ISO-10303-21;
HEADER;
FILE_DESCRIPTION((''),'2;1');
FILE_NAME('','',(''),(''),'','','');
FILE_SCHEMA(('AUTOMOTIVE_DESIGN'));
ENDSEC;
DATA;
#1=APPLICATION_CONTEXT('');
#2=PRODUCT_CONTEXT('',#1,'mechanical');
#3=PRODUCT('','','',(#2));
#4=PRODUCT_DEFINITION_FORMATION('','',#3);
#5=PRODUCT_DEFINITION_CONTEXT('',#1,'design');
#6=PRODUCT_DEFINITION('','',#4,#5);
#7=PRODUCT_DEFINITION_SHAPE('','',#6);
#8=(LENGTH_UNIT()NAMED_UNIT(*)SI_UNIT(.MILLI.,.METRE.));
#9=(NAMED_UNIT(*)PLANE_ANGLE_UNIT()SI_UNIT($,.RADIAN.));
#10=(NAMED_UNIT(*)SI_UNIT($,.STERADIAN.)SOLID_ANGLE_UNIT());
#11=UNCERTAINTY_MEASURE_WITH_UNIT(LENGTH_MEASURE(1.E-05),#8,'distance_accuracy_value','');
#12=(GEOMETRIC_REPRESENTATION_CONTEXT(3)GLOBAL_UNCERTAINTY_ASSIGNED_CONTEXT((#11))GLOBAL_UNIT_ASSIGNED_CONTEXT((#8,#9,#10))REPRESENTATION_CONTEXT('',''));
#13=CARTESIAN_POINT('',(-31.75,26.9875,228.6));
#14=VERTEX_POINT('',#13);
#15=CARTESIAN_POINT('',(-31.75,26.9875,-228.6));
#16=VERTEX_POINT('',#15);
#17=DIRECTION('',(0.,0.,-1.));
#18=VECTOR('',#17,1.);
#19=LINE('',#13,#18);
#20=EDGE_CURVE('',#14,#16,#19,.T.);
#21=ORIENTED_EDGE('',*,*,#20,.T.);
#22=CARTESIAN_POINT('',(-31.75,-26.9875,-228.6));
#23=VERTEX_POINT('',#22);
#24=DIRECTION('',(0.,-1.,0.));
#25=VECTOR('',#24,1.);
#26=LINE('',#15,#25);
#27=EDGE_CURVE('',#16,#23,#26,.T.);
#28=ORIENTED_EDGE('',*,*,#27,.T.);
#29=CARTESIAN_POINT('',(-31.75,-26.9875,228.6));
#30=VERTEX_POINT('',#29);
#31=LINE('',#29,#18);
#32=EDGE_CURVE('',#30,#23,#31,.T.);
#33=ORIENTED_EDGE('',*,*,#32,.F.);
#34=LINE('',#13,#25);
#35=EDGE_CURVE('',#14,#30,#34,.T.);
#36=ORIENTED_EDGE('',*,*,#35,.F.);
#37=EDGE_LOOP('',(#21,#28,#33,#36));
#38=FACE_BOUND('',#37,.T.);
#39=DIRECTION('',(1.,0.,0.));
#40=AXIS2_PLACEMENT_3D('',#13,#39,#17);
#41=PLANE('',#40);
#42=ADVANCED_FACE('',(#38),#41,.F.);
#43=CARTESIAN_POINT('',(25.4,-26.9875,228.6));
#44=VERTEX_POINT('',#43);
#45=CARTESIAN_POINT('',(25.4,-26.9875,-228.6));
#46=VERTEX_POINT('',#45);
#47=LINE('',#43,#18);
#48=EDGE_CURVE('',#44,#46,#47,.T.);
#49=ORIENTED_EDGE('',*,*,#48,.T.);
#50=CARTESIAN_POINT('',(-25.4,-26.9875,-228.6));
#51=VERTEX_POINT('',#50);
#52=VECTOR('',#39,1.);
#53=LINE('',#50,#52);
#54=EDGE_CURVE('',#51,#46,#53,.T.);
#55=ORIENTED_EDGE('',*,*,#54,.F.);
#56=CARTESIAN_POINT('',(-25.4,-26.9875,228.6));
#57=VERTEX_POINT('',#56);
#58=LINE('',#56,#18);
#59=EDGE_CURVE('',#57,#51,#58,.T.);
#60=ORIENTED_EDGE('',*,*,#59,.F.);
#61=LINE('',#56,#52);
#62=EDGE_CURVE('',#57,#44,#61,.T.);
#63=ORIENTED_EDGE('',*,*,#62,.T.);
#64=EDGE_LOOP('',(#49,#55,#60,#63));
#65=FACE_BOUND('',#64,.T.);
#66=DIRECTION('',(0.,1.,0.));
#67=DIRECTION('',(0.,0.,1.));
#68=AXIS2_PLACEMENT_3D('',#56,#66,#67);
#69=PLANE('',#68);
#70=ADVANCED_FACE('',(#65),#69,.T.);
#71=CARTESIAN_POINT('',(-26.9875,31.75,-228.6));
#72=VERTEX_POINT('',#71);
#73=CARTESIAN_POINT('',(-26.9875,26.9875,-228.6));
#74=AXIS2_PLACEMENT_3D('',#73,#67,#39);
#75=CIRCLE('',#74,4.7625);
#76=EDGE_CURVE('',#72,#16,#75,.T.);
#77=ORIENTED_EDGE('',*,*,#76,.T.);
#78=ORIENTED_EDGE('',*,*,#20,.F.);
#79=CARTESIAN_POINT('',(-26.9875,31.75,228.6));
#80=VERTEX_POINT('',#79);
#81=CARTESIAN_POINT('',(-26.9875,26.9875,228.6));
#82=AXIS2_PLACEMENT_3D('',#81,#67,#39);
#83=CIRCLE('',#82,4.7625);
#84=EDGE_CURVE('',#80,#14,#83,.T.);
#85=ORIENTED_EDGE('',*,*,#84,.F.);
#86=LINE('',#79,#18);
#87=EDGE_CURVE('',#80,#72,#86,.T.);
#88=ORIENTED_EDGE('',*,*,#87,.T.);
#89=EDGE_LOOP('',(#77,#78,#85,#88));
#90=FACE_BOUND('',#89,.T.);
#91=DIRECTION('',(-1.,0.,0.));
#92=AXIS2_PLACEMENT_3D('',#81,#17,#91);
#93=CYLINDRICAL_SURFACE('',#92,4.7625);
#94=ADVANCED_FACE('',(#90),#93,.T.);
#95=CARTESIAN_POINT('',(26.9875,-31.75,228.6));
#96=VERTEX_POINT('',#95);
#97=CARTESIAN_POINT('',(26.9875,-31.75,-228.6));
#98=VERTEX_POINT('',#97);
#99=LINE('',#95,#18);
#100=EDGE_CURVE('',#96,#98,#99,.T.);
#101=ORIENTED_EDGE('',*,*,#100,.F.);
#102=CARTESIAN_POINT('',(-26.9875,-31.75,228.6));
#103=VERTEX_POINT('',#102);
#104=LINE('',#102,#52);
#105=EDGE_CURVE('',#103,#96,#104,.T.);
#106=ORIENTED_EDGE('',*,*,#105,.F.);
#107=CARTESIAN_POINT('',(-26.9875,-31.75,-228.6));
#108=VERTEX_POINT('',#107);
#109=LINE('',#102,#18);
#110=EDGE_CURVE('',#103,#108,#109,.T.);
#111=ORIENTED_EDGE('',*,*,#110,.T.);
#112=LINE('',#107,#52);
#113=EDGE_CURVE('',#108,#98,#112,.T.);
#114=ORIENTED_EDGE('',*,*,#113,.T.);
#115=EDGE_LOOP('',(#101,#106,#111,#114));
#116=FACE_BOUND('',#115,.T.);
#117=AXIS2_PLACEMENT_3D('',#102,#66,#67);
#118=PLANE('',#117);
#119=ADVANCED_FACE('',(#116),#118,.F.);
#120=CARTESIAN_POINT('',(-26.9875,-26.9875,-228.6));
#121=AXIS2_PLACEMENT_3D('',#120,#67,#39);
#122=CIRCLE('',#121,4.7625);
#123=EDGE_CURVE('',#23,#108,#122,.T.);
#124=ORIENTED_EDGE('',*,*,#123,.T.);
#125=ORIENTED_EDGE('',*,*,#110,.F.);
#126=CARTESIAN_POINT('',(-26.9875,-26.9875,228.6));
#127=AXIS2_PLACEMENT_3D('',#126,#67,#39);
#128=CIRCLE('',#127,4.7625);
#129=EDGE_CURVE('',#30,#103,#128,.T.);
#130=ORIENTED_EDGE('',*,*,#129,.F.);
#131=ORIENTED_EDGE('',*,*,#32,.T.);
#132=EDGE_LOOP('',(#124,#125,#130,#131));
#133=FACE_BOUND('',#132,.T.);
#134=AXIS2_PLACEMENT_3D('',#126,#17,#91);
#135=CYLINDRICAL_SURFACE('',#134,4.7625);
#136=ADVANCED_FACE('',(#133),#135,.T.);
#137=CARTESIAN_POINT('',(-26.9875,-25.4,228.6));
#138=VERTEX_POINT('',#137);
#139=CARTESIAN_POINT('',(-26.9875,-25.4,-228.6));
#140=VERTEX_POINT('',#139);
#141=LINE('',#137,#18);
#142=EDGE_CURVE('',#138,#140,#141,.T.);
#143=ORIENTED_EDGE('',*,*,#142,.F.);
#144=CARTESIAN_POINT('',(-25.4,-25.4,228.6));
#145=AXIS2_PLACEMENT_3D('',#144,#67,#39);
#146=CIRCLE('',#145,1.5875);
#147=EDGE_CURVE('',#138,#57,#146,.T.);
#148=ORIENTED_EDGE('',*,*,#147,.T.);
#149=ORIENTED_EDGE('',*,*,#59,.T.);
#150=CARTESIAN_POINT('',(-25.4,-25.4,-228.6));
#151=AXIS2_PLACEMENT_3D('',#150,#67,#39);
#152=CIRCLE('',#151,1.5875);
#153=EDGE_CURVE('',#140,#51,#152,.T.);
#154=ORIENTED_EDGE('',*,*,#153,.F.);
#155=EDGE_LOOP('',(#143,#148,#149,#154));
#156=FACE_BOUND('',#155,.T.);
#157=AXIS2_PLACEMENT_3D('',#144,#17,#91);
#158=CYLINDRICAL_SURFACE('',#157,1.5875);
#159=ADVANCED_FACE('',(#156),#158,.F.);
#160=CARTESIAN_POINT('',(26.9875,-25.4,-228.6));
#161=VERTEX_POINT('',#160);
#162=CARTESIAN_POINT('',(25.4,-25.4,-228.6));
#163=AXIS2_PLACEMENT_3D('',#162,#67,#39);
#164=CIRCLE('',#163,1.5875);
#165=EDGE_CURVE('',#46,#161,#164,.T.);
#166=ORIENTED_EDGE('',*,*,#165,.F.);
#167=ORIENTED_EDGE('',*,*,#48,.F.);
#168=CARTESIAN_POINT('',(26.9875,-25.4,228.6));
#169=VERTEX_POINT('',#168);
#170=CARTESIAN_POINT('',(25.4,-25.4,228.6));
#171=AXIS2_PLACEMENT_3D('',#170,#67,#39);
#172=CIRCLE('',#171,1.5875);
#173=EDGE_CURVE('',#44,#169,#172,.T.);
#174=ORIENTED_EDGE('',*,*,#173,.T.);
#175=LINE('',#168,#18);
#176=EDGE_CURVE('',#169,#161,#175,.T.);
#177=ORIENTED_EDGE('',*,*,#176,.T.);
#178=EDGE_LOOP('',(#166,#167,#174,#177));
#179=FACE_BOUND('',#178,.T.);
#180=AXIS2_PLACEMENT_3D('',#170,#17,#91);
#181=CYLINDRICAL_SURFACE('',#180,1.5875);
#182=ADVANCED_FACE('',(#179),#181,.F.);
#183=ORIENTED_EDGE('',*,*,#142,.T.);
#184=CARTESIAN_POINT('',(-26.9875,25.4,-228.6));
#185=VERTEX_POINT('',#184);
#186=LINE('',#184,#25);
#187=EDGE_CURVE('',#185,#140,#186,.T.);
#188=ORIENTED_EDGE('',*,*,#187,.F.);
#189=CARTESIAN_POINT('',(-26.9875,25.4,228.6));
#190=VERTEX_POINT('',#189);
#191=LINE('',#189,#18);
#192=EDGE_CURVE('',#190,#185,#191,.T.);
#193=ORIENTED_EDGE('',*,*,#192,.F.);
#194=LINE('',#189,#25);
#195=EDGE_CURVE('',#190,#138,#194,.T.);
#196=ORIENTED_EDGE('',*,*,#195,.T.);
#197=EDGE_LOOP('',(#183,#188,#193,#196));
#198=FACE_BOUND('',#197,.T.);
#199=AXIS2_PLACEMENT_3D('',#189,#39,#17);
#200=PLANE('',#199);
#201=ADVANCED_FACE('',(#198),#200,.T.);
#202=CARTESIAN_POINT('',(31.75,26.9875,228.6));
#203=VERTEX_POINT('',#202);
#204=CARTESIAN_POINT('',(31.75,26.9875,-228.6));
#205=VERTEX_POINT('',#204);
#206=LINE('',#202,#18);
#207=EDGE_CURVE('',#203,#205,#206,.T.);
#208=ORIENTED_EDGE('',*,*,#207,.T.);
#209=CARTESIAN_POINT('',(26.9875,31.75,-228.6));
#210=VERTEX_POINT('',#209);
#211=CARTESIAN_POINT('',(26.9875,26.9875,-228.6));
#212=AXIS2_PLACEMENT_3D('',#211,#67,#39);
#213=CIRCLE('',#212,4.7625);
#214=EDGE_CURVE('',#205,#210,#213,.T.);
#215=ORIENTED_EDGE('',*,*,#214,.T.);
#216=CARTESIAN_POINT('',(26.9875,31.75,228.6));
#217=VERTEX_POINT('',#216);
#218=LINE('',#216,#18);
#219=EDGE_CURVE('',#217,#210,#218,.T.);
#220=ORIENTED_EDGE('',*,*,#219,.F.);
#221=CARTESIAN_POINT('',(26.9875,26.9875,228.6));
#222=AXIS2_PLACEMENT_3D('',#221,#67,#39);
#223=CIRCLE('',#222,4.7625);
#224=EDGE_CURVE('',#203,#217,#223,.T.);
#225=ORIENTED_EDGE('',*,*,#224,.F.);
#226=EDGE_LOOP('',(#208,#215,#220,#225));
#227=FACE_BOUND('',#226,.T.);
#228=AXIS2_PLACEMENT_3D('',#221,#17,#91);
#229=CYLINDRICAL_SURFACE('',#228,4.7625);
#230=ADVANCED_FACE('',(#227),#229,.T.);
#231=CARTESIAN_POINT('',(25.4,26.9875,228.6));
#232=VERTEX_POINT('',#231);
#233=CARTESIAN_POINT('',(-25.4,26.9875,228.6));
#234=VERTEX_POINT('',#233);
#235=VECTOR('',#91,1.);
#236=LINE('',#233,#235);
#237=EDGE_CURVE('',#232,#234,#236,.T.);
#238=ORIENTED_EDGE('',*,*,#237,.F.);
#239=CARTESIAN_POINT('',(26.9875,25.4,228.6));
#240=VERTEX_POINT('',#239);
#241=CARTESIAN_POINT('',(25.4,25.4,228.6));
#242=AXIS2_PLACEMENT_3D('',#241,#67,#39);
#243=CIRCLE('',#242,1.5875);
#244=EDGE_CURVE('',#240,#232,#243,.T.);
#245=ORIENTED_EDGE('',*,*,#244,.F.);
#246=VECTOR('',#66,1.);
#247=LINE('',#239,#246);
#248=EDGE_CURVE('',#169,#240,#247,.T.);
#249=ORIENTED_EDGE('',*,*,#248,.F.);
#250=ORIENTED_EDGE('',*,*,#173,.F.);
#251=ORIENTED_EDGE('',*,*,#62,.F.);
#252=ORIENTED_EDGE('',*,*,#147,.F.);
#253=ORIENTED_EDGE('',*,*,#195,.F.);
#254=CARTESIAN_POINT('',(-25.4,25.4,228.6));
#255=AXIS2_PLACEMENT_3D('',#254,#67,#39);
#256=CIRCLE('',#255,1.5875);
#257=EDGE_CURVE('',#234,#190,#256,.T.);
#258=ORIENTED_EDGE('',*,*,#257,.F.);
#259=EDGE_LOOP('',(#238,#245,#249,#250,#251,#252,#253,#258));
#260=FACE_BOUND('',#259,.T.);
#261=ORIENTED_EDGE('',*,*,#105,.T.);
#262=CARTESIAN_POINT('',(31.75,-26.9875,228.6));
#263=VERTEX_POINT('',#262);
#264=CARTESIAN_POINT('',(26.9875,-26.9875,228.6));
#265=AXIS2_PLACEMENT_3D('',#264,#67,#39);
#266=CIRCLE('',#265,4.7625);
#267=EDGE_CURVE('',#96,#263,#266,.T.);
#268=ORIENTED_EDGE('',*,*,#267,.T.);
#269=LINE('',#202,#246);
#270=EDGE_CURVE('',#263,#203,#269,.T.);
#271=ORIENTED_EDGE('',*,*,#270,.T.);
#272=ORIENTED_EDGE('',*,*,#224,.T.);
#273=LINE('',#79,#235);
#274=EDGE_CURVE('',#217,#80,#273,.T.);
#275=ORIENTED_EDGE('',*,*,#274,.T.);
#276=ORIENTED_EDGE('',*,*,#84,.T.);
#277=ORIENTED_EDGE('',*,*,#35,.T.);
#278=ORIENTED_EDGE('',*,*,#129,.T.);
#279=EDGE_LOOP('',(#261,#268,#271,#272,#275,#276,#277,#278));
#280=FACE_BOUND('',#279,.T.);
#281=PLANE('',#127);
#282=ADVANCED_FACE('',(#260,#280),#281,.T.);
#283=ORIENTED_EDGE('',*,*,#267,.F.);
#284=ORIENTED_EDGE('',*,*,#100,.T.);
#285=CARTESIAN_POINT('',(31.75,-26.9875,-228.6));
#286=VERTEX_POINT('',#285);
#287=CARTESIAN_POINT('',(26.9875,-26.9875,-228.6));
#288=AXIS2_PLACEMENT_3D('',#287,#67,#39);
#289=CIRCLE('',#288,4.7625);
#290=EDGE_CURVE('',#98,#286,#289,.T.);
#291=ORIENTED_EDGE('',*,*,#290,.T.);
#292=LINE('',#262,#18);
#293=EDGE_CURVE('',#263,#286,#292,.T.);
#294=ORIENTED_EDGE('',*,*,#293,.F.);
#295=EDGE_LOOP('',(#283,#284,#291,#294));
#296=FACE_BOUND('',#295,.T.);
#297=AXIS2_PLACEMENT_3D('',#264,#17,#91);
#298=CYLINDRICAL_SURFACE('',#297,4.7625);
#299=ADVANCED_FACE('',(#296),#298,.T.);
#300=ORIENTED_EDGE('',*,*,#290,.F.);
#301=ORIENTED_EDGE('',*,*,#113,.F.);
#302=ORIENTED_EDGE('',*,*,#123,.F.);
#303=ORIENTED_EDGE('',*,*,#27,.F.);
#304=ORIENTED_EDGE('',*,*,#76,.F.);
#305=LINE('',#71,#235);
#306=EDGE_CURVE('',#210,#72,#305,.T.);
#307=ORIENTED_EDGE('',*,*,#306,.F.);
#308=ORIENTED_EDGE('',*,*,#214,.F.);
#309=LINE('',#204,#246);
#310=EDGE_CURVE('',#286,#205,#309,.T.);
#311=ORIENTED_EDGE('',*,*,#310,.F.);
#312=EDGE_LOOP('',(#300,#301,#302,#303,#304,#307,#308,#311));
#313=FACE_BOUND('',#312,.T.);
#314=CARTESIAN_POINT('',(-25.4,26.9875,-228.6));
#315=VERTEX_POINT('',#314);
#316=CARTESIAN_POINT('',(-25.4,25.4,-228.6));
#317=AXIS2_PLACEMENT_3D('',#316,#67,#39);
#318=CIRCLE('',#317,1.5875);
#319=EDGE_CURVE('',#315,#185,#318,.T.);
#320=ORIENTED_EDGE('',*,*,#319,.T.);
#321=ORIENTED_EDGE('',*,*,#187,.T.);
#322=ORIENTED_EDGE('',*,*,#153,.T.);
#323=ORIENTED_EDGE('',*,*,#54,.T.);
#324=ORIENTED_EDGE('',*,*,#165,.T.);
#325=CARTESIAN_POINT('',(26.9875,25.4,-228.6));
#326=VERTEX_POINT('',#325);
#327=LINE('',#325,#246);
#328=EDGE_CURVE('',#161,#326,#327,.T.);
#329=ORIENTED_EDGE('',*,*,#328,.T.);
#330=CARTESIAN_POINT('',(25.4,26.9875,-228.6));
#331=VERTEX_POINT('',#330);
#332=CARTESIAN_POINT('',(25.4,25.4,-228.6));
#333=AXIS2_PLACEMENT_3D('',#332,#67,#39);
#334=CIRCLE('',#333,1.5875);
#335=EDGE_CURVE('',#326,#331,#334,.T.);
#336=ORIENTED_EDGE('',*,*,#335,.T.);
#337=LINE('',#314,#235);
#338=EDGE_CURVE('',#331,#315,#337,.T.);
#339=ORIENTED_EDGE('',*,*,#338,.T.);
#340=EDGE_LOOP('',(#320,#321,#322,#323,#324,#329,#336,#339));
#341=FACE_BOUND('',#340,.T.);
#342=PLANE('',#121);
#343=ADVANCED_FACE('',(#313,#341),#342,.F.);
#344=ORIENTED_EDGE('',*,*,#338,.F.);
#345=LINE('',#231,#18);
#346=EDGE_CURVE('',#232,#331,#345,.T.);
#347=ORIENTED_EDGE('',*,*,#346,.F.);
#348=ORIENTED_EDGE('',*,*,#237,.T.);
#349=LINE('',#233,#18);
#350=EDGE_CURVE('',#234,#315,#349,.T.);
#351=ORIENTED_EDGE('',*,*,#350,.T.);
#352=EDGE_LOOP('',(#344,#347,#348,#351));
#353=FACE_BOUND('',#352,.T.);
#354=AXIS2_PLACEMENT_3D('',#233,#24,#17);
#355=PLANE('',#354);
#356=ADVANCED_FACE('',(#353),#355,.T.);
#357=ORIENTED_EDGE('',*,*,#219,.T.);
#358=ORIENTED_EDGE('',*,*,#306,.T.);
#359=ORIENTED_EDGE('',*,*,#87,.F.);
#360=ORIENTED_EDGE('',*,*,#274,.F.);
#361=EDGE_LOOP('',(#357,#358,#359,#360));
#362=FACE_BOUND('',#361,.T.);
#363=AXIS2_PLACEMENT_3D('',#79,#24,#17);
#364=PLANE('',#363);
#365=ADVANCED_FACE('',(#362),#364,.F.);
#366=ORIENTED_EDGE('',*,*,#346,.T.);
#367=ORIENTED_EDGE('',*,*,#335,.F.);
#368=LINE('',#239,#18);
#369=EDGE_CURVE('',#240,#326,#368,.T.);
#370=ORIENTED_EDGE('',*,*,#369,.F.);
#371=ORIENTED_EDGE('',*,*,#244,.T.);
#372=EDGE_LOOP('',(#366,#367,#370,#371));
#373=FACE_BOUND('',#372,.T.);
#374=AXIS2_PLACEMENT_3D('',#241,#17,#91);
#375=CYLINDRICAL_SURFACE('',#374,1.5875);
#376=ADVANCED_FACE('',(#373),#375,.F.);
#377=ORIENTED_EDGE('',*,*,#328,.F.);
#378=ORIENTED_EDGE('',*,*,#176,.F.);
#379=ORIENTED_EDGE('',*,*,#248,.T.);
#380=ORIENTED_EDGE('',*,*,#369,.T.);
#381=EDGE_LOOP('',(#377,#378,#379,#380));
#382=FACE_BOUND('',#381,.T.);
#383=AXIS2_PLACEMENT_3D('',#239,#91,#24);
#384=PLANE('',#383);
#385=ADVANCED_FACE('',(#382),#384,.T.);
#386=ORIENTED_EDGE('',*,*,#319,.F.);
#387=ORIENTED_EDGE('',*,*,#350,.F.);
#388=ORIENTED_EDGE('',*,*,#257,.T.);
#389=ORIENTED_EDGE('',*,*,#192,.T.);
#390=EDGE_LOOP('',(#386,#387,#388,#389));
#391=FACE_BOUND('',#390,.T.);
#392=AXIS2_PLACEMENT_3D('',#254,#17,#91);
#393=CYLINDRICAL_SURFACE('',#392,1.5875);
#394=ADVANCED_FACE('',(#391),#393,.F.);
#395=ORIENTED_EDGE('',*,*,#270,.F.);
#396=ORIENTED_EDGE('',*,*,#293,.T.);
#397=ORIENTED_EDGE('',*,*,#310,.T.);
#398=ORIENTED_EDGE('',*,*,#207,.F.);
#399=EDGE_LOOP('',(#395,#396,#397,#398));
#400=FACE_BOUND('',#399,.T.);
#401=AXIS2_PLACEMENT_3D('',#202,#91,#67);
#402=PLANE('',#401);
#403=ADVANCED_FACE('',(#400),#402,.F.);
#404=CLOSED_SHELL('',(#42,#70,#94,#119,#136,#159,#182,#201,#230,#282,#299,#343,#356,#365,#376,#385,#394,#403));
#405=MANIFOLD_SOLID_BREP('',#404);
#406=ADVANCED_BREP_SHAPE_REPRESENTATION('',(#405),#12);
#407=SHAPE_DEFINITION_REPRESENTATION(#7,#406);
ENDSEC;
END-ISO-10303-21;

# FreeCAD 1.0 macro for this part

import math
import FreeCAD as App
import Part
import Sketcher
Q = App.Units.Quantity

doc = App.newDocument("Part")
body = doc.addObject("PartDesign::Body", "Body")

sketch1 = body.newObject("Sketcher::SketchObject", "Sketch")
sketch1.AttachmentSupport = (doc.getObject("XY_Plane"), [""])
sketch1.MapMode = "FlatFace"
sketch1.addGeometry([
    Part.LineSegment(App.Vector(27, 31.8, 0), App.Vector(-27, 31.8, 0)),
    Part.ArcOfCircle(Part.Circle(App.Vector(-27, 27, 0), App.Vector(0, 0, 1), 4.8), math.radians(90), math.radians(180)),
    Part.LineSegment(App.Vector(-31.8, 27, 0), App.Vector(-31.8, -27, 0)),
    Part.ArcOfCircle(Part.Circle(App.Vector(-27, -27, 0), App.Vector(0, 0, 1), 4.8), math.radians(-180), math.radians(-90)),
    Part.LineSegment(App.Vector(-27, -31.8, 0), App.Vector(27, -31.8, 0)),
    Part.ArcOfCircle(Part.Circle(App.Vector(27, -27, 0), App.Vector(0, 0, 1), 4.8), math.radians(-90), math.radians(0)),
    Part.LineSegment(App.Vector(31.8, -27, 0), App.Vector(31.8, 27, 0)),
    Part.ArcOfCircle(Part.Circle(App.Vector(27, 27, 0), App.Vector(0, 0, 1), 4.8), math.radians(0), math.radians(90)),
    Part.LineSegment(App.Vector(-25.4, 27, 0), App.Vector(25.4, 27, 0)),
    Part.ArcOfCircle(Part.Circle(App.Vector(25.4, 25.4, 0), App.Vector(0, 0, 1), 1.6), math.radians(0), math.radians(90)),
    Part.LineSegment(App.Vector(27, 25.4, 0), App.Vector(27, -25.4, 0)),
    Part.ArcOfCircle(Part.Circle(App.Vector(25.4, -25.4, 0), App.Vector(0, 0, 1), 1.6), math.radians(-90), math.radians(0)),
    Part.LineSegment(App.Vector(25.4, -27, 0), App.Vector(-25.4, -27, 0)),
    Part.ArcOfCircle(Part.Circle(App.Vector(-25.4, -25.4, 0), App.Vector(0, 0, 1), 1.6), math.radians(180), math.radians(270)),
    Part.LineSegment(App.Vector(-27, -25.4, 0), App.Vector(-27, 25.4, 0)),
    Part.ArcOfCircle(Part.Circle(App.Vector(-25.4, 25.4, 0), App.Vector(0, 0, 1), 1.6), math.radians(90), math.radians(180)),
], False)
sketch1.addConstraint([
    Sketcher.Constraint("Tangent", 0, 2, 1, 1),
    Sketcher.Constraint("Tangent", 1, 2, 2, 1),
    Sketcher.Constraint("Tangent", 2, 2, 3, 1),
    Sketcher.Constraint("Tangent", 3, 2, 4, 1),
    Sketcher.Constraint("Tangent", 4, 2, 5, 1),
    Sketcher.Constraint("Tangent", 5, 2, 6, 1),
    Sketcher.Constraint("Tangent", 6, 2, 7, 1),
    Sketcher.Constraint("Tangent", 7, 2, 0, 1),
    Sketcher.Constraint("Tangent", 8, 2, 9, 2),
    Sketcher.Constraint("Tangent", 9, 1, 10, 1),
    Sketcher.Constraint("Tangent", 10, 2, 11, 2),
    Sketcher.Constraint("Tangent", 11, 1, 12, 1),
    Sketcher.Constraint("Tangent", 12, 2, 13, 2),
    Sketcher.Constraint("Tangent", 13, 1, 14, 1),
    Sketcher.Constraint("Tangent", 14, 2, 15, 2),
    Sketcher.Constraint("Tangent", 15, 1, 8, 1),
    Sketcher.Constraint("Horizontal", 0),
    Sketcher.Constraint("Vertical", 2),
    Sketcher.Constraint("Horizontal", 4),
    Sketcher.Constraint("Vertical", 6),
    Sketcher.Constraint("Horizontal", 8),
    Sketcher.Constraint("Vertical", 10),
    Sketcher.Constraint("Horizontal", 12),
    Sketcher.Constraint("Vertical", 14),
    Sketcher.Constraint("Equal", 1, 3),
    Sketcher.Constraint("Equal", 3, 5),
    Sketcher.Constraint("Equal", 5, 7),
    Sketcher.Constraint("Equal", 9, 11),
    Sketcher.Constraint("Equal", 11, 13),
    Sketcher.Constraint("Equal", 13, 15),
    Sketcher.Constraint("Symmetric", 1, 3, 5, 3, -1, 1),
    Sketcher.Constraint("Symmetric", 9, 3, 13, 3, -1, 1),
    Sketcher.Constraint("Horizontal", 6, 2, 8, 2),
    Sketcher.Constraint("Vertical", 7, 2, 9, 1),
    Sketcher.Constraint("Equal", 4, 2),
    Sketcher.Constraint("DistanceX", 8, 1, 8, 2, Q("2 in")),
    Sketcher.Constraint("Radius", 1, Q("0.1875 in")),
    Sketcher.Constraint("Radius", 9, Q("0.0625 in")),
])
pad1 = body.newObject("PartDesign::Pad", "Pad")
pad1.Profile = sketch1
pad1.Length = Q("18 in")
pad1.Midplane = True

doc.recompute()
